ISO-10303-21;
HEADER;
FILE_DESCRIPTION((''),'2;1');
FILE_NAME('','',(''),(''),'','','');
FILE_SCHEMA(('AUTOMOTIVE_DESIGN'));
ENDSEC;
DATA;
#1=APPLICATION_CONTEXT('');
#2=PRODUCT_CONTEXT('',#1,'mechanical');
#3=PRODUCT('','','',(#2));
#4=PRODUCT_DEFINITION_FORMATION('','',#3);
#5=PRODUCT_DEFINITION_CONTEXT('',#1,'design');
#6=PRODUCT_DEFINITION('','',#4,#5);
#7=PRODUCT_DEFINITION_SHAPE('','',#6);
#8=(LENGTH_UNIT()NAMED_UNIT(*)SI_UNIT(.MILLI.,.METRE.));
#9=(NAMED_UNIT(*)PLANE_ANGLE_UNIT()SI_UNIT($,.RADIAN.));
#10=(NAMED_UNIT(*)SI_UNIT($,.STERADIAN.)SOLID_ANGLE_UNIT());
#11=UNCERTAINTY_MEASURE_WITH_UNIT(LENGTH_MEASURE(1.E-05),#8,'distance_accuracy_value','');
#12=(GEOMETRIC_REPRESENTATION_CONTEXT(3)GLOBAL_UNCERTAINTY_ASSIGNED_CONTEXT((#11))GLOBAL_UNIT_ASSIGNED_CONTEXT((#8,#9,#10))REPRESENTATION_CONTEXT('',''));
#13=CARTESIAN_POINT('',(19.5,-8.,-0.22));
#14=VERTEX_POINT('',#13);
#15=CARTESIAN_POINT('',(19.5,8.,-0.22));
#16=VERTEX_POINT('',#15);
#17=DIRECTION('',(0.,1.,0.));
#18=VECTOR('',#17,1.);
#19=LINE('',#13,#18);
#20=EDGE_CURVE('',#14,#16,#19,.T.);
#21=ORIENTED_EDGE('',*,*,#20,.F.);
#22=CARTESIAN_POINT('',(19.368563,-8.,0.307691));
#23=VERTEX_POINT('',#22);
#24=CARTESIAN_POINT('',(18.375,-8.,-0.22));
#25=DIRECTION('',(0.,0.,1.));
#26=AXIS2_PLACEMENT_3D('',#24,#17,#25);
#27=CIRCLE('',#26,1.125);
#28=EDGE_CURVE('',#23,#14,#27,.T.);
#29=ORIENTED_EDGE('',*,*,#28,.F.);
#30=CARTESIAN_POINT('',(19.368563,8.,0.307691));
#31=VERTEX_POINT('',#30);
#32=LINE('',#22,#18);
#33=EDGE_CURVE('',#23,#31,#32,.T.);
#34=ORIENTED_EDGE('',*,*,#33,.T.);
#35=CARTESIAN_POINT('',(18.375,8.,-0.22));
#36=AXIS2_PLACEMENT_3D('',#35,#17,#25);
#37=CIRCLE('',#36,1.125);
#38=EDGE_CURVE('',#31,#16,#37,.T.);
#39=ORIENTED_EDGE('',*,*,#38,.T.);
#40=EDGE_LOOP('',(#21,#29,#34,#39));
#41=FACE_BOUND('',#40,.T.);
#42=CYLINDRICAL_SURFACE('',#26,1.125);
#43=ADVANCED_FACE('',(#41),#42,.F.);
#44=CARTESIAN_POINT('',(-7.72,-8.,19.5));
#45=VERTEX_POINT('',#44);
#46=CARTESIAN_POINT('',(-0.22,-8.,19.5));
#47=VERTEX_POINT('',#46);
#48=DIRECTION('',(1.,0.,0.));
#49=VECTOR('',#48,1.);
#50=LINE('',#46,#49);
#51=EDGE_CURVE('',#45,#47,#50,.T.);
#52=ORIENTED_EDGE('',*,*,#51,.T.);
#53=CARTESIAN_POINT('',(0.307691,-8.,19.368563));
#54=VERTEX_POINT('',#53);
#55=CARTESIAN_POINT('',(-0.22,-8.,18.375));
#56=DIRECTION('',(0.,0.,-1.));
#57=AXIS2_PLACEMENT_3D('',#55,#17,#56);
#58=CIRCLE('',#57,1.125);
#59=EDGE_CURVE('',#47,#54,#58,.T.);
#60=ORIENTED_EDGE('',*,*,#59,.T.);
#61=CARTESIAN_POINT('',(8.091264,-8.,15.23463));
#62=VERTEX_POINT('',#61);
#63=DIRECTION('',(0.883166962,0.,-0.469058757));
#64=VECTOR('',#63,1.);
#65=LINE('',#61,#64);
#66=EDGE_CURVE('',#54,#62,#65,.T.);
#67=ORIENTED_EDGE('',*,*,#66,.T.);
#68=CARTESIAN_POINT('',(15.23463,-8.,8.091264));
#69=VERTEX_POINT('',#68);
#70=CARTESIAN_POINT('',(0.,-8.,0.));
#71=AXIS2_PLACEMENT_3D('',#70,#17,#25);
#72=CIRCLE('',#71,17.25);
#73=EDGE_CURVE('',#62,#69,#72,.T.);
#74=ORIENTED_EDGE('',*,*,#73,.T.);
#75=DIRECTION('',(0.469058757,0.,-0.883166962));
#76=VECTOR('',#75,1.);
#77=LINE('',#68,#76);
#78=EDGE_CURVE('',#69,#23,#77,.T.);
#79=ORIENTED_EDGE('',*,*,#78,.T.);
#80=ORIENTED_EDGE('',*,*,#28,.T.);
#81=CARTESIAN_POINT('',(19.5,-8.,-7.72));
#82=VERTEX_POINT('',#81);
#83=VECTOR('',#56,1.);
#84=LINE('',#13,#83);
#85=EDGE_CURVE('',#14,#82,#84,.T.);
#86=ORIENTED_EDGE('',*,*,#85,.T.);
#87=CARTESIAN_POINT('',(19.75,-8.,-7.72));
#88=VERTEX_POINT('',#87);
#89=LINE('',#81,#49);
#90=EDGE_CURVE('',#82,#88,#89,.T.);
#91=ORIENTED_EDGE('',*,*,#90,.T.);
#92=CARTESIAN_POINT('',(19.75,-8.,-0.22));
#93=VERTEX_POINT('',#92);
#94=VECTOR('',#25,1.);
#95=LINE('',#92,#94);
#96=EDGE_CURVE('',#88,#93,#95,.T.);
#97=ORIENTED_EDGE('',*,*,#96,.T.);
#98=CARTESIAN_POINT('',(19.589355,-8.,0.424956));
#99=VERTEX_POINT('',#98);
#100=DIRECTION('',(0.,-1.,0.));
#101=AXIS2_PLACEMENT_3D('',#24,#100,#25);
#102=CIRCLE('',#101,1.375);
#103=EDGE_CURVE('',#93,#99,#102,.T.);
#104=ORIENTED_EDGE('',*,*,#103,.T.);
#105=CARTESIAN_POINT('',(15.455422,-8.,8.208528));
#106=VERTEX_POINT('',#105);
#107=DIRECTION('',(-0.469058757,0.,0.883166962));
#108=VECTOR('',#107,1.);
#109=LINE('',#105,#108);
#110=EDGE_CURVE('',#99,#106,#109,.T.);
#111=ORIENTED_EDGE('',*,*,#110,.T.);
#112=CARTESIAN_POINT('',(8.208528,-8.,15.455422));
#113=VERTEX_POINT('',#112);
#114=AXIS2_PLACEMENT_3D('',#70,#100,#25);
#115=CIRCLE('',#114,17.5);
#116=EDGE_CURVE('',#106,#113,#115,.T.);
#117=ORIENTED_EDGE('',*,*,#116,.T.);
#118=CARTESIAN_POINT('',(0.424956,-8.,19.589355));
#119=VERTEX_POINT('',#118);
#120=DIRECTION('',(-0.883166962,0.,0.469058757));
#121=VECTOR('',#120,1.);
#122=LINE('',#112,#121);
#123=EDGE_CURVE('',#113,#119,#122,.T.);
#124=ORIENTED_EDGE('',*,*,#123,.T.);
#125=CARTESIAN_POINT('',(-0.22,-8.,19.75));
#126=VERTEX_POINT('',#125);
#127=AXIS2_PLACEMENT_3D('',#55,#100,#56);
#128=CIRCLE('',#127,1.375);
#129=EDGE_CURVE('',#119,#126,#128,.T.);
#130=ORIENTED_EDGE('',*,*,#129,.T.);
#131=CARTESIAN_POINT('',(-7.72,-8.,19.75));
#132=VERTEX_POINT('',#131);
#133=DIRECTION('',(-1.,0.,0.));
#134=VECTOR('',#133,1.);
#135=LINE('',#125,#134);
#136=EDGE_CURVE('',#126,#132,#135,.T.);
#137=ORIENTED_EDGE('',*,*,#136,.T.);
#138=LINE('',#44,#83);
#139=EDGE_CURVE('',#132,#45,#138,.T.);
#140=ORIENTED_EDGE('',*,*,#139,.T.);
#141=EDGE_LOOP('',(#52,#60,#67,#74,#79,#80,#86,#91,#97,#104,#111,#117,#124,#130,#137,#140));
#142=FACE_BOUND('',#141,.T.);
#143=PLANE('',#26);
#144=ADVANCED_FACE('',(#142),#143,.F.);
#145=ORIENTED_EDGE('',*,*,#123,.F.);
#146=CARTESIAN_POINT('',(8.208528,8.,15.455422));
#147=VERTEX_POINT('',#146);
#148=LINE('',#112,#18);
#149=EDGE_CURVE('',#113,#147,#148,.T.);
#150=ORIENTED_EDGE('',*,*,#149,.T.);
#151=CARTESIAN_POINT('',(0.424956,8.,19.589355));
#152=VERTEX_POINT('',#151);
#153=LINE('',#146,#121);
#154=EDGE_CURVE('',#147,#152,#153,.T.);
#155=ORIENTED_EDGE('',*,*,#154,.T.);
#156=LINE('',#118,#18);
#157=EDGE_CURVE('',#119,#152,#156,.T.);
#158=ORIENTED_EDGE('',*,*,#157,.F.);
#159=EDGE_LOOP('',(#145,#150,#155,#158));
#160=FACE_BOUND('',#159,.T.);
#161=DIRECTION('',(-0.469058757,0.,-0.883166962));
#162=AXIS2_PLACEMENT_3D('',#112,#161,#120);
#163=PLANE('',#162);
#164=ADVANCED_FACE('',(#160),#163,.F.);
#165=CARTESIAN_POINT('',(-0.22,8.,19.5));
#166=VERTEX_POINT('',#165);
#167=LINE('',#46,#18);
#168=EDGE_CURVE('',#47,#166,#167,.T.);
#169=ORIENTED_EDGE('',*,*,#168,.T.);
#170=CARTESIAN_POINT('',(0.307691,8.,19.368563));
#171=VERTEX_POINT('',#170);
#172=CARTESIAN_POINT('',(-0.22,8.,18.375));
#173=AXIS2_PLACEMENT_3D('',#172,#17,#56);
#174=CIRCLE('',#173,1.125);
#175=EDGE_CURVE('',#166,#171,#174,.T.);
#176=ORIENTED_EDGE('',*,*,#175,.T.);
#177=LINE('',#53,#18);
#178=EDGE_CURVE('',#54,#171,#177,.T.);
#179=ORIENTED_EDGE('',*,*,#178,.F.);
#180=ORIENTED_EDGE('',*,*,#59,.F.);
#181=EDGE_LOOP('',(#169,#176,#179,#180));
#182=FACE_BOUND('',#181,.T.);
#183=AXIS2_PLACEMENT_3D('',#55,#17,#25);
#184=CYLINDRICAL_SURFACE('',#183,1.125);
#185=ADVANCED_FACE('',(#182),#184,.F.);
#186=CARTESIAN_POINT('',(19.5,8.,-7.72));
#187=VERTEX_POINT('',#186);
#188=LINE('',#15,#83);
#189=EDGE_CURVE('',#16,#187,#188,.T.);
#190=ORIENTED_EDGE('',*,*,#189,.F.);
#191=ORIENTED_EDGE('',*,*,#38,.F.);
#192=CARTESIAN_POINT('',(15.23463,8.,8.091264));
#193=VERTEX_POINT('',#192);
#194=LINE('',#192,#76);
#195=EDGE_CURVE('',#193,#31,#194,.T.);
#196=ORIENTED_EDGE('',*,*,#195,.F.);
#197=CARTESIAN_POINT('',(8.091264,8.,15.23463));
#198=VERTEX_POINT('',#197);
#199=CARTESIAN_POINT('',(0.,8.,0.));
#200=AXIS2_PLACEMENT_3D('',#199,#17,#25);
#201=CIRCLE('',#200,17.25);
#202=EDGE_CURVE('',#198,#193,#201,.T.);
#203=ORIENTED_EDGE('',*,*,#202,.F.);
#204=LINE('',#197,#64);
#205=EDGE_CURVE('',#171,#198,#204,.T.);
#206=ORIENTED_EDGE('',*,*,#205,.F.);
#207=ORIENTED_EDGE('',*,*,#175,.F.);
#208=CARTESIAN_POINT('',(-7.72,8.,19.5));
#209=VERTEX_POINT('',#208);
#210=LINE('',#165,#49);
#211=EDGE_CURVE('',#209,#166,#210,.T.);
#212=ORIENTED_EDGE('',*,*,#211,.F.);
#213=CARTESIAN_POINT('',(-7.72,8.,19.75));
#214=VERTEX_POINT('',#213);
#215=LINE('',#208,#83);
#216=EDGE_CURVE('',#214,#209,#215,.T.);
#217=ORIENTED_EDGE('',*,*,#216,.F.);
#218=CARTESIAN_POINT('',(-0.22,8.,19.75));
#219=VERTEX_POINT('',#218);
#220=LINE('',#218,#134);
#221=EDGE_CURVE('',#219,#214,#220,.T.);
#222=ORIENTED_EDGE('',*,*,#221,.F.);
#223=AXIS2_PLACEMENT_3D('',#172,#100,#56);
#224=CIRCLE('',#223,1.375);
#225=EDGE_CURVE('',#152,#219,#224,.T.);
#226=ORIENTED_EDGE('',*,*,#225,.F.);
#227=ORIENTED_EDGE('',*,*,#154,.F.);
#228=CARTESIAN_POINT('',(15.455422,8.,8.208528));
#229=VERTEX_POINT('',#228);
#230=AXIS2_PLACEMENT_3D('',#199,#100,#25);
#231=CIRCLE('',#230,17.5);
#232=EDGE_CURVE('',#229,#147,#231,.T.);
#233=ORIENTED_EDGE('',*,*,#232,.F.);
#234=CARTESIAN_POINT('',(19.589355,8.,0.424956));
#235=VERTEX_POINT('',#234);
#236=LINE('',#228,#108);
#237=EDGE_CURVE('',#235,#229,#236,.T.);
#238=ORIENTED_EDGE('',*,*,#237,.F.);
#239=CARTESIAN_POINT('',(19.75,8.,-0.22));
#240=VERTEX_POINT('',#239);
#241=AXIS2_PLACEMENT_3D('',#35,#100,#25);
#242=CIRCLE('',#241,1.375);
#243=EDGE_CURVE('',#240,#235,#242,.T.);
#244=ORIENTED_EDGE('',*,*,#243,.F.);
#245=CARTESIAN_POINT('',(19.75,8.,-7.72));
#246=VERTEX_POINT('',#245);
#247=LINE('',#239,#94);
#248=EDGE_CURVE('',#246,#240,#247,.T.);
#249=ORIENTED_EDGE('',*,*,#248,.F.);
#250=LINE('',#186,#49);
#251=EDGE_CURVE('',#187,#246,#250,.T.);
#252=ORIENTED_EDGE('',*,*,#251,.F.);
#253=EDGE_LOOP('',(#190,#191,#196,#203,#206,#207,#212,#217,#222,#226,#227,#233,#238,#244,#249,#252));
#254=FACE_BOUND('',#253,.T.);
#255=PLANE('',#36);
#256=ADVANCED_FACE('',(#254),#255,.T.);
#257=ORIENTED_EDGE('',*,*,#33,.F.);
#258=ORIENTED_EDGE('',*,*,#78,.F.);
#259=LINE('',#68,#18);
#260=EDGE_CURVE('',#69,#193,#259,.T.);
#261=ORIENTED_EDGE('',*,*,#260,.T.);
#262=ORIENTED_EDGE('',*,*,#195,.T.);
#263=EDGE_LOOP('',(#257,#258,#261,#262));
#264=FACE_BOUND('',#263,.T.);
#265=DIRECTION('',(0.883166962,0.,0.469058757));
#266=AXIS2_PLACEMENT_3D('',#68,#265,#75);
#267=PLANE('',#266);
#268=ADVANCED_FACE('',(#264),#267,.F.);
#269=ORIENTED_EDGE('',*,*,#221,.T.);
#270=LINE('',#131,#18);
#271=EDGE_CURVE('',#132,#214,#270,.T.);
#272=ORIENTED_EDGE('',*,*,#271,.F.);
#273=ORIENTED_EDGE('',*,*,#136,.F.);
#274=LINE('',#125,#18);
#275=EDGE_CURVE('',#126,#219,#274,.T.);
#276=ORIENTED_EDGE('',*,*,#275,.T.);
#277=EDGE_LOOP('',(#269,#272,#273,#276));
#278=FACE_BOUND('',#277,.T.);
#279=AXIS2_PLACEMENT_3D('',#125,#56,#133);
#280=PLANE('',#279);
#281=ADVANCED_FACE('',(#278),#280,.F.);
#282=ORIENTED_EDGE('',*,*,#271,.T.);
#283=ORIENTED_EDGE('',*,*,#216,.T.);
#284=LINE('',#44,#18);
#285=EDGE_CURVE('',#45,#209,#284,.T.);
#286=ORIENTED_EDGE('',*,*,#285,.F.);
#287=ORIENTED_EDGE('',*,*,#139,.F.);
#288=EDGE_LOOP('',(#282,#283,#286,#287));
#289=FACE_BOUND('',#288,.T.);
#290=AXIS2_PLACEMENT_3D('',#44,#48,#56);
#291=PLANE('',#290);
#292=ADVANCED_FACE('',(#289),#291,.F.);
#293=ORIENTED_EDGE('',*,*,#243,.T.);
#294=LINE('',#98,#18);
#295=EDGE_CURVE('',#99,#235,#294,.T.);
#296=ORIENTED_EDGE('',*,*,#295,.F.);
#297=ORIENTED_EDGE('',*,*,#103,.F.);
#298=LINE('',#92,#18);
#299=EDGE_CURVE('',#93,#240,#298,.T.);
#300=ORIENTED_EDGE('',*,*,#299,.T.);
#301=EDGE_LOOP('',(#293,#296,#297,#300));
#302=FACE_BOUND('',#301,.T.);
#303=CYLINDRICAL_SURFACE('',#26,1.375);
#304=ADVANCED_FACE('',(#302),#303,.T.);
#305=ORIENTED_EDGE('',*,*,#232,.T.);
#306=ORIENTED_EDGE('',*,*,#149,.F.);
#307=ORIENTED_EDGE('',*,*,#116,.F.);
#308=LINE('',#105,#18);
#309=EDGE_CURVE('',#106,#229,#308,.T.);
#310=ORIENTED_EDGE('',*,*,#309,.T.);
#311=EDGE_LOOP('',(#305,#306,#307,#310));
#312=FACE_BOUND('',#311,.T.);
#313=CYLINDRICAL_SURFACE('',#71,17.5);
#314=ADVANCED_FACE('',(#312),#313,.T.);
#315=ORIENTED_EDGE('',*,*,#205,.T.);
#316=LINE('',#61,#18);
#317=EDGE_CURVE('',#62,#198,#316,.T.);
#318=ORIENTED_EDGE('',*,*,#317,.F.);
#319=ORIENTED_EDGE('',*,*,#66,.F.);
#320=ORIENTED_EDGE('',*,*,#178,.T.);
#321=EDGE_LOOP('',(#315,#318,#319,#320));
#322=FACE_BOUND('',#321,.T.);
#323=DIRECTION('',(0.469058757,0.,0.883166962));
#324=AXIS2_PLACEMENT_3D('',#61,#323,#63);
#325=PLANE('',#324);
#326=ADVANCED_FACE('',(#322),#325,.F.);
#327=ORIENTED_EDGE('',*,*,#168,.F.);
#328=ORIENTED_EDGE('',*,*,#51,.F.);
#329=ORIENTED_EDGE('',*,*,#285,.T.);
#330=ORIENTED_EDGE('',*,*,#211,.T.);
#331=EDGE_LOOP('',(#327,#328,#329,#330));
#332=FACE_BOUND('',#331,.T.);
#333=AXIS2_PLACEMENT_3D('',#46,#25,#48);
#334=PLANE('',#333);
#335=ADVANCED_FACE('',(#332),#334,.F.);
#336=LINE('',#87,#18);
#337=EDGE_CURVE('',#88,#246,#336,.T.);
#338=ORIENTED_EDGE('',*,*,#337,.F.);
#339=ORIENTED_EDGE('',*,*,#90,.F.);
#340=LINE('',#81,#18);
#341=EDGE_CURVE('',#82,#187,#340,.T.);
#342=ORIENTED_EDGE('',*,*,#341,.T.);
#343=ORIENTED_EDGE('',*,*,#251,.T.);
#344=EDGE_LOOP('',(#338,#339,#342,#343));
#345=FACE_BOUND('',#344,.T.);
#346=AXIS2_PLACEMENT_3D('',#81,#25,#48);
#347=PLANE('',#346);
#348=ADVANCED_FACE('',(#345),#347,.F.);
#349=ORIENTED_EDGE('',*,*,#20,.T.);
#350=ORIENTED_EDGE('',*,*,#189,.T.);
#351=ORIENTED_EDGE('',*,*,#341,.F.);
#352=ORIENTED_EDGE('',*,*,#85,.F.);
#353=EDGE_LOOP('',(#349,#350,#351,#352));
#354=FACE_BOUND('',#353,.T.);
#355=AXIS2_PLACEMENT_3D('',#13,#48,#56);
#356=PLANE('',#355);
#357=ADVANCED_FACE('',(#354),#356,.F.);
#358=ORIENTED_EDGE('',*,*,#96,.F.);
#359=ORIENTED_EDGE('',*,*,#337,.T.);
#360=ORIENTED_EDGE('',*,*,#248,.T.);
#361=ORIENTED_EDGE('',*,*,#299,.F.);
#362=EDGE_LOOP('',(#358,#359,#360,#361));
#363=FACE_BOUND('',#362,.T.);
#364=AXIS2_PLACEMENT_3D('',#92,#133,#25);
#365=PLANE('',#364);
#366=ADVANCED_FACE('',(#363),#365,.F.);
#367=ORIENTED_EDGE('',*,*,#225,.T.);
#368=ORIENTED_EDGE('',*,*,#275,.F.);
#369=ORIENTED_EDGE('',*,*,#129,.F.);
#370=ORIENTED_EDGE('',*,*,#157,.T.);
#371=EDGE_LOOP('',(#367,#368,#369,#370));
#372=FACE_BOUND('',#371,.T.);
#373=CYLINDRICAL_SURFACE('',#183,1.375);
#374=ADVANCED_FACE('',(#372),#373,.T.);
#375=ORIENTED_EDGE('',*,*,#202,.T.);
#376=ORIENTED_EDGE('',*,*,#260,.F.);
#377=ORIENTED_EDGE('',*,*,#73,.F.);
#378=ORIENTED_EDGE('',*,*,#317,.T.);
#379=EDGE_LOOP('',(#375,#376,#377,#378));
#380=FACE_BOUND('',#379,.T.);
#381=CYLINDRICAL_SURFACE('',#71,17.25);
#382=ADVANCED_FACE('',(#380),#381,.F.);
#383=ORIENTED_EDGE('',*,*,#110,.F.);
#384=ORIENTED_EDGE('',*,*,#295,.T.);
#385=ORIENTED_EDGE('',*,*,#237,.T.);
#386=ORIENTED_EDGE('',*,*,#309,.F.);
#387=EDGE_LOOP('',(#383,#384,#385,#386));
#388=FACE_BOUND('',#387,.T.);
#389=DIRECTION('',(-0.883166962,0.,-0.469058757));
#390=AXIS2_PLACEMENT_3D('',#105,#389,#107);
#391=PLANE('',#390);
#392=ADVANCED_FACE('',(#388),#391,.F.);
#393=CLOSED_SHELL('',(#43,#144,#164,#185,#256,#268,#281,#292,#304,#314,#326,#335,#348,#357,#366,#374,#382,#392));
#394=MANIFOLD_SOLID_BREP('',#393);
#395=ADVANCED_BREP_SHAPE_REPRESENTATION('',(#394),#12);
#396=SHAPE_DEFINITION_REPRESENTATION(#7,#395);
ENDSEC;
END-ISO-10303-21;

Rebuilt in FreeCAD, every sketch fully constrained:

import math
import FreeCAD as App
import Part
import Sketcher
Q = App.Units.Quantity

doc = App.newDocument("Part")
body = doc.addObject("PartDesign::Body", "Body")

# Sketch on XZ plane
sketch1 = body.newObject("Sketcher::SketchObject", "Sketch")
sketch1.AttachmentSupport = (doc.getObject("XZ_Plane"), [""])
sketch1.MapMode = "FlatFace"
sketch1.addGeometry([
    Part.LineSegment(App.Vector(0.307691, 19.368563, 0), App.Vector(8.091264, 15.23463, 0)),  # 0
    Part.ArcOfCircle(Part.Circle(App.Vector(0, 0, 0), App.Vector(0, 0, 1), 17.25), math.radians(27.973216), math.radians(62.026784)),  # 1
    Part.LineSegment(App.Vector(15.23463, 8.091264, 0), App.Vector(19.368563, 0.307691, 0)),  # 2
    Part.ArcOfCircle(Part.Circle(App.Vector(18.375, -0.22, 0), App.Vector(0, 0, 1), 1.125), math.radians(0), math.radians(27.973216)),  # 3
    Part.LineSegment(App.Vector(19.5, -0.22, 0), App.Vector(19.5, -7.72, 0)),  # 4
    Part.LineSegment(App.Vector(19.5, -7.72, 0), App.Vector(19.75, -7.72, 0)),  # 5
    Part.LineSegment(App.Vector(19.75, -7.72, 0), App.Vector(19.75, -0.22, 0)),  # 6
    Part.ArcOfCircle(Part.Circle(App.Vector(18.375, -0.22, 0), App.Vector(0, 0, 1), 1.375), math.radians(0), math.radians(27.973216)),  # 7
    Part.LineSegment(App.Vector(19.589355, 0.424956, 0), App.Vector(15.455422, 8.208528, 0)),  # 8
    Part.ArcOfCircle(Part.Circle(App.Vector(0, 0, 0), App.Vector(0, 0, 1), 17.5), math.radians(27.973216), math.radians(62.026784)),  # 9
    Part.LineSegment(App.Vector(8.208528, 15.455422, 0), App.Vector(0.424956, 19.589355, 0)),  # 10
    Part.ArcOfCircle(Part.Circle(App.Vector(-0.22, 18.375, 0), App.Vector(0, 0, 1), 1.375), math.radians(62.026784), math.radians(90)),  # 11
    Part.LineSegment(App.Vector(-0.22, 19.75, 0), App.Vector(-7.72, 19.75, 0)),  # 12
    Part.LineSegment(App.Vector(-7.72, 19.75, 0), App.Vector(-7.72, 19.5, 0)),  # 13
    Part.LineSegment(App.Vector(-7.72, 19.5, 0), App.Vector(-0.22, 19.5, 0)),  # 14
    Part.ArcOfCircle(Part.Circle(App.Vector(-0.22, 18.375, 0), App.Vector(0, 0, 1), 1.125), math.radians(62.026784), math.radians(90)),  # 15
], False)
sketch1.addConstraint([
    Sketcher.Constraint("Tangent", 0, 2, 1, 2),
    Sketcher.Constraint("Tangent", 1, 1, 2, 1),
    Sketcher.Constraint("Tangent", 2, 2, 3, 2),
    Sketcher.Constraint("Tangent", 3, 1, 4, 1),
    Sketcher.Constraint("Coincident", 4, 2, 5, 1),
    Sketcher.Constraint("Coincident", 5, 2, 6, 1),
    Sketcher.Constraint("Tangent", 6, 2, 7, 1),
    Sketcher.Constraint("Tangent", 7, 2, 8, 1),
    Sketcher.Constraint("Tangent", 8, 2, 9, 1),
    Sketcher.Constraint("Tangent", 9, 2, 10, 1),
    Sketcher.Constraint("Tangent", 10, 2, 11, 1),
    Sketcher.Constraint("Tangent", 11, 2, 12, 1),
    Sketcher.Constraint("Coincident", 12, 2, 13, 1),
    Sketcher.Constraint("Coincident", 13, 2, 14, 1),
    Sketcher.Constraint("Tangent", 14, 2, 15, 2),
    Sketcher.Constraint("Tangent", 15, 1, 0, 1),
    Sketcher.Constraint("Vertical", 4),
    Sketcher.Constraint("Horizontal", 5),
    Sketcher.Constraint("Vertical", 6),
    Sketcher.Constraint("Horizontal", 12),
    Sketcher.Constraint("Vertical", 13),
    Sketcher.Constraint("Horizontal", 14),
    Sketcher.Constraint("Coincident", 1, 3, -1, 1),
    Sketcher.Constraint("Coincident", 9, 3, -1, 1),
    Sketcher.Constraint("Coincident", 7, 3, 3, 3),
    Sketcher.Constraint("Coincident", 15, 3, 11, 3),
    Sketcher.Constraint("Equal", 7, 11),
    Sketcher.Constraint("Equal", 3, 15),
    Sketcher.Constraint("Parallel", 2, 8),
    Sketcher.Constraint("Equal", 14, 4),
    Sketcher.Constraint("Equal", 0, 2),
    Sketcher.Constraint("Radius", 9, Q("17.5 mm")),
    Sketcher.Constraint("Radius", 1, Q("17.25 mm")),
    Sketcher.Constraint("DistanceX", 12, 2, 12, 1, Q("7.5 mm")),
    Sketcher.Constraint("Radius", 3, Q("1.125 mm")),
    Sketcher.Constraint("DistanceX", -1, 1, 3, 1, Q("19.5 mm")),
    Sketcher.Constraint("DistanceY", -1, 1, 13, 2, Q("19.5 mm")),
    Sketcher.Constraint("DistanceY", 3, 3, -1, 1, Q("0.22 mm")),
])
pad1 = body.newObject("PartDesign::Pad", "Pad")
pad1.Profile = sketch1
pad1.Length = 16
pad1.Midplane = True

doc.recompute()
